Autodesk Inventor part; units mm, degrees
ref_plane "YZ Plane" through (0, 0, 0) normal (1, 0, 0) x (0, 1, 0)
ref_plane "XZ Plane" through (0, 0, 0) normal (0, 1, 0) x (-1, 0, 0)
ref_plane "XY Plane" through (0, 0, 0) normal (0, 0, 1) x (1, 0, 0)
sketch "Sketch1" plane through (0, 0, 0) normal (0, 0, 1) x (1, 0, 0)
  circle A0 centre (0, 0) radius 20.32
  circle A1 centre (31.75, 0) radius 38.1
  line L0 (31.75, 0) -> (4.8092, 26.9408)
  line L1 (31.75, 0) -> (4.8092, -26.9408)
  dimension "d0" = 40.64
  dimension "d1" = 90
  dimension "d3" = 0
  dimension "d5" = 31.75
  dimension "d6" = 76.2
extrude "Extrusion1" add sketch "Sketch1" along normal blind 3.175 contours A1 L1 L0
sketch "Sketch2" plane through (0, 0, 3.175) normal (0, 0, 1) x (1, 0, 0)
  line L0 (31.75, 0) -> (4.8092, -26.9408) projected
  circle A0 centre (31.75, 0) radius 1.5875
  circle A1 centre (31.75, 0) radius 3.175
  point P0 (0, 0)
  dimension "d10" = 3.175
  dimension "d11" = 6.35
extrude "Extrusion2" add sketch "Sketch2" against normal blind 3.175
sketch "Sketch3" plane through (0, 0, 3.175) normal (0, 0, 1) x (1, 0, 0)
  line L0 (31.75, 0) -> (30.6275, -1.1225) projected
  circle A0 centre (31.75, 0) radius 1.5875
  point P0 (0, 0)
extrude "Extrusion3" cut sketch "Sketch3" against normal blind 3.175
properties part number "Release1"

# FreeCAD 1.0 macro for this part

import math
import FreeCAD as App
import Part
import Sketcher
Q = App.Units.Quantity

doc = App.newDocument("Part")
body = doc.addObject("PartDesign::Body", "Body")

sketch1 = doc.addObject("Sketcher::SketchObject", "Sketch")
body.addObject(sketch1)
sketch1.AttachmentSupport = (doc.XY_Plane, [""])
sketch1.MapMode = "FlatFace"
sketch1.addGeometry([
    Part.ArcOfCircle(Part.Circle(App.Vector(31.75, 0, 0), App.Vector(0, 0, 1), 38.1), math.radians(-135), math.radians(135)),
    Part.LineSegment(App.Vector(4.8092, 26.9408, 0), App.Vector(31.75, 0, 0)),
    Part.LineSegment(App.Vector(31.75, 0, 0), App.Vector(4.8092, -26.9408, 0)),
], False)
sketch1.addConstraint([
    Sketcher.Constraint("Coincident", 0, 2, 1, 1),
    Sketcher.Constraint("Coincident", 1, 2, 2, 1),
    Sketcher.Constraint("Coincident", 2, 2, 0, 1),
    Sketcher.Constraint("Coincident", 1, 2, 0, 3),
    Sketcher.Constraint("Symmetric", 0, 2, 2, 2, -1),
    Sketcher.Constraint("Perpendicular", 1, 2),
    Sketcher.Constraint("Radius", 0, Q("1.5 in")),
    Sketcher.Constraint("DistanceX", -1, 1, 0, 3, Q("1.25 in")),
])
pad1 = doc.addObject("PartDesign::Pad", "Pad")
body.addObject(pad1)
pad1.Profile = sketch1
pad1.Length = Q("0.125 in")

sketch2 = doc.addObject("Sketcher::SketchObject", "Sketch001")
body.addObject(sketch2)
sketch2.AttachmentSupport = (doc.XY_Plane, [""])
sketch2.MapMode = "FlatFace"
sketch2.AttachmentOffset = App.Placement(App.Vector(0, 0, 0.125 * 25.4), App.Rotation())
sketch2.addGeometry([
    Part.Circle(App.Vector(31.75, 0, 0), App.Vector(0, 0, 1), 3.175),
    Part.Circle(App.Vector(31.75, 0, 0), App.Vector(0, 0, 1), 1.5875),
], False)
sketch2.addConstraint([
    Sketcher.Constraint("Coincident", 1, 3, 0, 3),
    Sketcher.Constraint("PointOnObject", 0, 3, -1),
    Sketcher.Constraint("Diameter", 0, Q("0.25 in")),
    Sketcher.Constraint("Diameter", 1, Q("0.125 in")),
    Sketcher.Constraint("DistanceX", -1, 1, 0, 3, Q("1.25 in")),
])
pad2 = doc.addObject("PartDesign::Pad", "Pad001")
body.addObject(pad2)
pad2.Profile = sketch2
pad2.Length = Q("0.125 in")
pad2.Reversed = True

sketch3 = doc.addObject("Sketcher::SketchObject", "Sketch002")
body.addObject(sketch3)
sketch3.AttachmentSupport = (doc.XY_Plane, [""])
sketch3.MapMode = "FlatFace"
sketch3.AttachmentOffset = App.Placement(App.Vector(0, 0, 0.125 * 25.4), App.Rotation())
sketch3.addGeometry(Part.Circle(App.Vector(31.75, 0, 0), App.Vector(0, 0, 1), 1.5875), False)
sketch3.addConstraint([
    Sketcher.Constraint("PointOnObject", 0, 3, -1),
    Sketcher.Constraint("Diameter", 0, Q("0.125 in")),
    Sketcher.Constraint("DistanceX", -1, 1, 0, 3, Q("1.25 in")),
])
pocket1 = doc.addObject("PartDesign::Pocket", "Pocket")
body.addObject(pocket1)
pocket1.Profile = sketch3
pocket1.Length = Q("0.125 in")

doc.recompute()
